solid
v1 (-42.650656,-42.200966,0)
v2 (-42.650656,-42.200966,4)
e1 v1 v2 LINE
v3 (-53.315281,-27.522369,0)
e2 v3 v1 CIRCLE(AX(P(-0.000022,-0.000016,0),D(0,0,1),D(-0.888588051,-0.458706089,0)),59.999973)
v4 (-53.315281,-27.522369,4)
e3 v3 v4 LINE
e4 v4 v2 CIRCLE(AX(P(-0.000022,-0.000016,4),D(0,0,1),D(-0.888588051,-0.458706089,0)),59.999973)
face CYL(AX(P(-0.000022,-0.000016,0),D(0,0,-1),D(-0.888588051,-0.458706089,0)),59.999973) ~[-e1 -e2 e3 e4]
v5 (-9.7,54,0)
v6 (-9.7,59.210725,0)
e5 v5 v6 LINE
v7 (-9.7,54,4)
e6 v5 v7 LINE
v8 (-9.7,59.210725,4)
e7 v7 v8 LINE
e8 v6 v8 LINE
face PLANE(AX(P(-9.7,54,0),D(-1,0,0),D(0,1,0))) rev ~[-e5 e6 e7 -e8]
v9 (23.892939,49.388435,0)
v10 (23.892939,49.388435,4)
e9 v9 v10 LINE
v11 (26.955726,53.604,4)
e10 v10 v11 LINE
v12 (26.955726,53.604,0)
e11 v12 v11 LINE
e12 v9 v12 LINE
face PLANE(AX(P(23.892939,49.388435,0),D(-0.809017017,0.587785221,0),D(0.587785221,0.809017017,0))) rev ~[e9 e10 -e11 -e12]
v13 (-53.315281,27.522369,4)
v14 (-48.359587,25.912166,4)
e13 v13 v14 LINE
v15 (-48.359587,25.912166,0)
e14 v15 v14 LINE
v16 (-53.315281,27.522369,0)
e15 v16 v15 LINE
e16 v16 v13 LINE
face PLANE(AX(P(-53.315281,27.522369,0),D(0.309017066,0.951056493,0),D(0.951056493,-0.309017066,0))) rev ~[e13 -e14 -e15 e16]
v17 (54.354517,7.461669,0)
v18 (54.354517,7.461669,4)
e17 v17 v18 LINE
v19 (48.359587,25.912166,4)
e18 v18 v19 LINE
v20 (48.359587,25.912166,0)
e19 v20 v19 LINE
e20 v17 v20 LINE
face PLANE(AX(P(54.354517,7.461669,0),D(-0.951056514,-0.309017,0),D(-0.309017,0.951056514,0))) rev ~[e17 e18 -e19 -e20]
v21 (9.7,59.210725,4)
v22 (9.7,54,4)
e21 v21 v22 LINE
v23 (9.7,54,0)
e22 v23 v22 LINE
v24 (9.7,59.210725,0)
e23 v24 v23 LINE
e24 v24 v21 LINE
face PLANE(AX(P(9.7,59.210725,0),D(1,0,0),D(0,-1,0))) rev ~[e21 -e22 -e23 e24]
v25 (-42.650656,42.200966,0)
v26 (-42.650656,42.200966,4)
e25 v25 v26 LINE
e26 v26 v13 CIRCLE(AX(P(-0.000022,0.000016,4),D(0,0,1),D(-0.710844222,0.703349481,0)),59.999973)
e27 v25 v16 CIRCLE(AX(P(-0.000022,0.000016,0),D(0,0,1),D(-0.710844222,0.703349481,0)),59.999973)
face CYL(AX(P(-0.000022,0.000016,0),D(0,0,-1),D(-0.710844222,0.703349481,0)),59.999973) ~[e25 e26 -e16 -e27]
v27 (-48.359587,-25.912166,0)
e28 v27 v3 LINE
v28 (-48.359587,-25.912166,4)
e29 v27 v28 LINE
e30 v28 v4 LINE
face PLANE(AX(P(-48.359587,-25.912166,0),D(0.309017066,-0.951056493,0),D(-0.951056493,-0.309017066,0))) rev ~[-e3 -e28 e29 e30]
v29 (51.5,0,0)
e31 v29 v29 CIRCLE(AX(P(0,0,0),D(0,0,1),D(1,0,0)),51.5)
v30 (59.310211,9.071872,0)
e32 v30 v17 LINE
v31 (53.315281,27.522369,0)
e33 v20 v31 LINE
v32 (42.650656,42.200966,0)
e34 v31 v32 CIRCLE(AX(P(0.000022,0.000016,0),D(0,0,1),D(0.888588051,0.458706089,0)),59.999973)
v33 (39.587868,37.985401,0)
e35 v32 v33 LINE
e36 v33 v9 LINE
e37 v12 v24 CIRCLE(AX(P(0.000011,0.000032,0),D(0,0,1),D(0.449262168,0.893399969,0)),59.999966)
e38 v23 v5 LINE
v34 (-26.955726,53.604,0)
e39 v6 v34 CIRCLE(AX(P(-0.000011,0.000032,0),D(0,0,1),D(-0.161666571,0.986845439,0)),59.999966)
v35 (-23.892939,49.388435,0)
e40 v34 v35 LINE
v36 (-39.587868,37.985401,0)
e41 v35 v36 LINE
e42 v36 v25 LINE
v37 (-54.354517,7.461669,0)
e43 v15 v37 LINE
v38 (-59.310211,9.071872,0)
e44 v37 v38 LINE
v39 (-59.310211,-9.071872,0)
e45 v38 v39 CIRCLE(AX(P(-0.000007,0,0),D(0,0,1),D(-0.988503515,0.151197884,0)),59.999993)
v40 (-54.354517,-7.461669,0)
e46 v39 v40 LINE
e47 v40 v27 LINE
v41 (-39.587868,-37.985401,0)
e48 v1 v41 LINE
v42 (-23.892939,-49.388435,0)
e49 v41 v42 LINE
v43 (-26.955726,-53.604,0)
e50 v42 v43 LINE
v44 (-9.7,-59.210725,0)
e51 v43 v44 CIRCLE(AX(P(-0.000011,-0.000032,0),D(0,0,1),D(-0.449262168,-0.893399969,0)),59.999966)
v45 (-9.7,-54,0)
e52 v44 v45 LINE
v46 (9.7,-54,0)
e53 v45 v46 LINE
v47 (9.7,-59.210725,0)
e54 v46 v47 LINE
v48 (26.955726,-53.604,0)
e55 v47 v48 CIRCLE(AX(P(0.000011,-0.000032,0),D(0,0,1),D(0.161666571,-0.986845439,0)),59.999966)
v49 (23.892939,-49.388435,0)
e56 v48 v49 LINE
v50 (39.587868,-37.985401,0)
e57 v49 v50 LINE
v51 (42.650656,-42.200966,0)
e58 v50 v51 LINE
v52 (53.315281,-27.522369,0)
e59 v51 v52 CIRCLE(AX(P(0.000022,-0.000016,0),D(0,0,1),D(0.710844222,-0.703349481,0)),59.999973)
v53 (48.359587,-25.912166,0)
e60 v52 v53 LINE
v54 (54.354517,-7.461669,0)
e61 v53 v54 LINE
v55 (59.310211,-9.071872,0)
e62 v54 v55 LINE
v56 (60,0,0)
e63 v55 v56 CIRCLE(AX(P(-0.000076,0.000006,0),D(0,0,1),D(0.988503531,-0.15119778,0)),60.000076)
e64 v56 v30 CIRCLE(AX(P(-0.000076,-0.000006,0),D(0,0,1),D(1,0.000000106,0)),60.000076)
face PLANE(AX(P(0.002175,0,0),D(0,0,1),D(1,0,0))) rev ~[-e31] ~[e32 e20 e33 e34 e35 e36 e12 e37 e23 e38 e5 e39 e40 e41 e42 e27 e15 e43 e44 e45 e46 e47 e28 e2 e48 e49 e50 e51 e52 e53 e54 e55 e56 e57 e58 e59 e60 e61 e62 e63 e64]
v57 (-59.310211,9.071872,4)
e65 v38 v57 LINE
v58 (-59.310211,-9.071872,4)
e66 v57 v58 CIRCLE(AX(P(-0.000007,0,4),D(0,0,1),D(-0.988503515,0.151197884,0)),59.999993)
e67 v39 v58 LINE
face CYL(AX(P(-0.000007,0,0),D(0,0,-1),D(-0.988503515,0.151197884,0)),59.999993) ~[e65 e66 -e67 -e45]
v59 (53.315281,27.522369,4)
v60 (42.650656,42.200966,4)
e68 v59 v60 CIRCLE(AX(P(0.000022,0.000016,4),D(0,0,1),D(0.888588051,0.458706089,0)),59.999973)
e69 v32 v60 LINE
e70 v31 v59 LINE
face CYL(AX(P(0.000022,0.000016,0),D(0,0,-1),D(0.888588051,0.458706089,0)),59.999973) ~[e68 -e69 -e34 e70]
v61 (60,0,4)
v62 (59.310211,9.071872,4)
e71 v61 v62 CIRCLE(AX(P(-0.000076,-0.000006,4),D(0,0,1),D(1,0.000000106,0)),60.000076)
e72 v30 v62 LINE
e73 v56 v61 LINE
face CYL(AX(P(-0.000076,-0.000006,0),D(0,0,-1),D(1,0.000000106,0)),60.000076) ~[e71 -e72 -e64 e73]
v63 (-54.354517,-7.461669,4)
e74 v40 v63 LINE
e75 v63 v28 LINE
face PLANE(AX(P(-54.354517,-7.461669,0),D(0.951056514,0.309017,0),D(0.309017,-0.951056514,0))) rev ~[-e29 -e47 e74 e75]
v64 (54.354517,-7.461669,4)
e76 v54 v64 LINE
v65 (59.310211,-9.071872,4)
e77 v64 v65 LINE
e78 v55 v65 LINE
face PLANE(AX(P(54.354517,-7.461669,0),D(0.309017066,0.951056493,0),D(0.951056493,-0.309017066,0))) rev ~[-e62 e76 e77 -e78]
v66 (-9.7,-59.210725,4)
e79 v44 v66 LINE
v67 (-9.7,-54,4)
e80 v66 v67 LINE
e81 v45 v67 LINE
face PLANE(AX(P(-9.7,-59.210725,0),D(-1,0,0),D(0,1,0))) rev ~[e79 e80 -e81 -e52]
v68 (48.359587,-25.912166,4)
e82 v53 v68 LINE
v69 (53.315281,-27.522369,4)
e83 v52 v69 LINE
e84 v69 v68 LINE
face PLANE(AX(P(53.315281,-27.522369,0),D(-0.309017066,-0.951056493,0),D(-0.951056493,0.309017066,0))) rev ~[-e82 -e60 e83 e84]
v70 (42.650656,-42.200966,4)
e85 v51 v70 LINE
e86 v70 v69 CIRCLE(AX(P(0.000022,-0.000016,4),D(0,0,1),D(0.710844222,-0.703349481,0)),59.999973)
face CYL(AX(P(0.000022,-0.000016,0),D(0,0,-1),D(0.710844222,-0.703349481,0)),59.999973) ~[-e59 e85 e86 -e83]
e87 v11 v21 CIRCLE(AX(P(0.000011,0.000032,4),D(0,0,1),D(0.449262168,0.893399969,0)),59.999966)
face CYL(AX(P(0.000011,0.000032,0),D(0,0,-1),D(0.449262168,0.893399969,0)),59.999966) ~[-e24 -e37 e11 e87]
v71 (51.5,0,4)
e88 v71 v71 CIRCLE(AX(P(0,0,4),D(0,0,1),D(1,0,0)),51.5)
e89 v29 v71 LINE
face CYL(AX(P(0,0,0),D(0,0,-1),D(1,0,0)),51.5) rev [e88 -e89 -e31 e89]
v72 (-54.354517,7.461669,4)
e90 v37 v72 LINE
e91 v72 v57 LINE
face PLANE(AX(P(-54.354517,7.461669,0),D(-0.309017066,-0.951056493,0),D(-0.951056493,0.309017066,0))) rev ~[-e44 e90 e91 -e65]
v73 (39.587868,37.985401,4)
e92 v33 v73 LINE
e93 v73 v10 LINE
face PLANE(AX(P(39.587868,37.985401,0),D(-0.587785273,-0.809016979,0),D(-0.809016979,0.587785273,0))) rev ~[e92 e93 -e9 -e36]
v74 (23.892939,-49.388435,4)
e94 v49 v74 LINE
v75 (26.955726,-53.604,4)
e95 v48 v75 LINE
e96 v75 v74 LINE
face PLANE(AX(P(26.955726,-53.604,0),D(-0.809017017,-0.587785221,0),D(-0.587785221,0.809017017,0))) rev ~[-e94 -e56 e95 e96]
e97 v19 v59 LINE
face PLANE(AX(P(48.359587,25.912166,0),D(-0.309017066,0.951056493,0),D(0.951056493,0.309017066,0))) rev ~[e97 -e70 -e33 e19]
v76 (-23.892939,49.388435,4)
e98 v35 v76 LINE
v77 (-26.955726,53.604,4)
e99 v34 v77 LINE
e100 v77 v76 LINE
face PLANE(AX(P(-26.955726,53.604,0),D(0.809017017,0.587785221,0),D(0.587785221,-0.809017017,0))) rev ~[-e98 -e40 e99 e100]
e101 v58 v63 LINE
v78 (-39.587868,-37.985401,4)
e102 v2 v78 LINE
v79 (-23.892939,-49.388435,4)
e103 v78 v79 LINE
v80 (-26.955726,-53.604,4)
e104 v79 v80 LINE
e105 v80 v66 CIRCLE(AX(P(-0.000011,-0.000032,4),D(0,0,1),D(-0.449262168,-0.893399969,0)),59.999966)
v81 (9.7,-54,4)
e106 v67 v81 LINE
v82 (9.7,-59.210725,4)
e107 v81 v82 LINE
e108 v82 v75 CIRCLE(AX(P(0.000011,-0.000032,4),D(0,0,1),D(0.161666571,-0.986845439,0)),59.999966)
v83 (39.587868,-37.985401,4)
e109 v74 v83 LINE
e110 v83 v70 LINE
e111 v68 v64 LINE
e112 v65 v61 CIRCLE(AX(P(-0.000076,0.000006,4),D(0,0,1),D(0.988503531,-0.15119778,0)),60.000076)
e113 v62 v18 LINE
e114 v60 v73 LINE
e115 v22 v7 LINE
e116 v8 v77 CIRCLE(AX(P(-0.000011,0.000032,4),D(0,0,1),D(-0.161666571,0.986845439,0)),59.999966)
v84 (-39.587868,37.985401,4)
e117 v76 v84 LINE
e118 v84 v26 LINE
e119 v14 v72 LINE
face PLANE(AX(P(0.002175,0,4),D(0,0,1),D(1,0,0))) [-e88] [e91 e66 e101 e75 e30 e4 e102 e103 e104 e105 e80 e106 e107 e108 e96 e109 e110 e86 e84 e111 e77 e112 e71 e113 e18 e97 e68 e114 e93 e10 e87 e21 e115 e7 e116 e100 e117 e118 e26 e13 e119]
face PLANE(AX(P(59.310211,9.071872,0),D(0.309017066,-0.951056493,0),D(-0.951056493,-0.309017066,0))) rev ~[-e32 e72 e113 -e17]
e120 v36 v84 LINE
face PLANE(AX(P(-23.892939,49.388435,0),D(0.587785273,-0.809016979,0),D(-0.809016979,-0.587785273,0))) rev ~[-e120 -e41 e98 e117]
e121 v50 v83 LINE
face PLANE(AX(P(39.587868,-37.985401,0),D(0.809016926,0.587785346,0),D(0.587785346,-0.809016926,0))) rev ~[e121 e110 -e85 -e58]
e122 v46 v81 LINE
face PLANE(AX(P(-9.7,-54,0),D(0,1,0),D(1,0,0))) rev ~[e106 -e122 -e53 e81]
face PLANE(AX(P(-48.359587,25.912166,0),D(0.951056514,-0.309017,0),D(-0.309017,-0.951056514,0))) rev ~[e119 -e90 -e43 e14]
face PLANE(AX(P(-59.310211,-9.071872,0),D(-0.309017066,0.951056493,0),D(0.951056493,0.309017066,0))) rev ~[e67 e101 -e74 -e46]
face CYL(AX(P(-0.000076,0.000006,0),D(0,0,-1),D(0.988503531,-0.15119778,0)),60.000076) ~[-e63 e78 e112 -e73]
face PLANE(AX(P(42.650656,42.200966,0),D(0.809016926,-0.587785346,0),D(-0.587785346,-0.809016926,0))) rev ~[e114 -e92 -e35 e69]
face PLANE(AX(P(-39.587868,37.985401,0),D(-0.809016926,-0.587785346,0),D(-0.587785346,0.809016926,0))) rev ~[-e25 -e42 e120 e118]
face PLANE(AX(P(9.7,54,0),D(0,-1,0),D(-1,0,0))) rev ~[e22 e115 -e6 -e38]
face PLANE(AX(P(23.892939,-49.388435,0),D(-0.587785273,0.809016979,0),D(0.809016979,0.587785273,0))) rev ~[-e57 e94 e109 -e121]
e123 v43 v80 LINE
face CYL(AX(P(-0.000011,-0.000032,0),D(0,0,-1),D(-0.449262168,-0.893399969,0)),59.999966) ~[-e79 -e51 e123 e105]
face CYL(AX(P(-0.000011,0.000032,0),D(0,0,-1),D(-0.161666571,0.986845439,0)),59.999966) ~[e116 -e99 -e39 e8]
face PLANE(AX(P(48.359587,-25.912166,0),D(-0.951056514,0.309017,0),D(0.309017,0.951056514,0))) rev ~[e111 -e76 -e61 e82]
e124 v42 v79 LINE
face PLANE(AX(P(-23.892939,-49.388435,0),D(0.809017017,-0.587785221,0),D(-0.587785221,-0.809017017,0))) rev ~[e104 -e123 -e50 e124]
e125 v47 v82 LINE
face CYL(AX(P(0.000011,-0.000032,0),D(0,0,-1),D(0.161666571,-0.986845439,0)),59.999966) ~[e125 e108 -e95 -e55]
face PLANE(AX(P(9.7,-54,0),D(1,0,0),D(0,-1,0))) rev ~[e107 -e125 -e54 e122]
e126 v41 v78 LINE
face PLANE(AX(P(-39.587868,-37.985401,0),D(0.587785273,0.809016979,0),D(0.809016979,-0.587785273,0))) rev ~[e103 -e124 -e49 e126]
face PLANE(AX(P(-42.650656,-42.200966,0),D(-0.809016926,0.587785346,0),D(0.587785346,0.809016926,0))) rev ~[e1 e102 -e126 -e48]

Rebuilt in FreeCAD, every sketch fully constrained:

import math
import FreeCAD as App
import Part
import Sketcher

V = App.Vector
Q = App.Units.Quantity

doc = App.newDocument("Part")
body = doc.addObject("PartDesign::Body", "Body")

# Sketch on XY plane
sketch1 = doc.addObject("Sketcher::SketchObject", "Sketch")
body.addObject(sketch1)
sketch1.AttachmentSupport = (doc.XY_Plane, [""])
sketch1.MapMode = "FlatFace"
sketch1.addGeometry([
    Part.ArcOfCircle(Part.Circle(V(-0.000076, 0.000006, 0), V(0, 0, 1), 60.000076), math.radians(-8.696346), math.radians(-0.000006)),  # 0
    Part.ArcOfCircle(Part.Circle(V(-0.000076, -0.000006, 0), V(0, 0, 1), 60.000076), math.radians(0.000006), math.radians(8.696346)),  # 1
    Part.LineSegment(V(59.310211, 9.071872, 0), V(54.354517, 7.461669, 0)),  # 2
    Part.LineSegment(V(54.354517, 7.461669, 0), V(48.359587, 25.912166, 0)),  # 3
    Part.LineSegment(V(48.359587, 25.912166, 0), V(53.315281, 27.522369, 0)),  # 4
    Part.ArcOfCircle(Part.Circle(V(0.000022, 0.000016, 0), V(0, 0, 1), 59.999973), math.radians(27.303645), math.radians(44.696355)),  # 5
    Part.LineSegment(V(42.650656, 42.200966, 0), V(39.587868, 37.985401, 0)),  # 6
    Part.LineSegment(V(39.587868, 37.985401, 0), V(23.892939, 49.388435, 0)),  # 7
    Part.LineSegment(V(23.892939, 49.388435, 0), V(26.955726, 53.604, 0)),  # 8
    Part.ArcOfCircle(Part.Circle(V(0.000011, 0.000032, 0), V(0, 0, 1), 59.999966), math.radians(63.303645), math.radians(80.696357)),  # 9
    Part.LineSegment(V(9.7, 59.210725, 0), V(9.7, 54, 0)),  # 10
    Part.LineSegment(V(9.7, 54, 0), V(-9.7, 54, 0)),  # 11
    Part.LineSegment(V(-9.7, 54, 0), V(-9.7, 59.210725, 0)),  # 12
    Part.ArcOfCircle(Part.Circle(V(-0.000011, 0.000032, 0), V(0, 0, 1), 59.999966), math.radians(99.303643), math.radians(116.696355)),  # 13
    Part.LineSegment(V(-26.955726, 53.604, 0), V(-23.892939, 49.388435, 0)),  # 14
    Part.LineSegment(V(-23.892939, 49.388435, 0), V(-39.587868, 37.985401, 0)),  # 15
    Part.LineSegment(V(-39.587868, 37.985401, 0), V(-42.650656, 42.200966, 0)),  # 16
    Part.ArcOfCircle(Part.Circle(V(-0.000022, 0.000016, 0), V(0, 0, 1), 59.999973), math.radians(135.303645), math.radians(152.696355)),  # 17
    Part.LineSegment(V(-53.315281, 27.522369, 0), V(-48.359587, 25.912166, 0)),  # 18
    Part.LineSegment(V(-48.359587, 25.912166, 0), V(-54.354517, 7.461669, 0)),  # 19
    Part.LineSegment(V(-54.354517, 7.461669, 0), V(-59.310211, 9.071872, 0)),  # 20
    Part.ArcOfCircle(Part.Circle(V(-0.000007, 0, 0), V(0, 0, 1), 59.999993), math.radians(171.303648), math.radians(188.696352)),  # 21
    Part.LineSegment(V(-59.310211, -9.071872, 0), V(-54.354517, -7.461669, 0)),  # 22
    Part.LineSegment(V(-54.354517, -7.461669, 0), V(-48.359587, -25.912166, 0)),  # 23
    Part.LineSegment(V(-48.359587, -25.912166, 0), V(-53.315281, -27.522369, 0)),  # 24
    Part.ArcOfCircle(Part.Circle(V(-0.000022, -0.000016, 0), V(0, 0, 1), 59.999973), math.radians(-152.696355), math.radians(-135.303645)),  # 25
    Part.LineSegment(V(-42.650656, -42.200966, 0), V(-39.587868, -37.985401, 0)),  # 26
    Part.LineSegment(V(-39.587868, -37.985401, 0), V(-23.892939, -49.388435, 0)),  # 27
    Part.LineSegment(V(-23.892939, -49.388435, 0), V(-26.955726, -53.604, 0)),  # 28
    Part.ArcOfCircle(Part.Circle(V(-0.000011, -0.000032, 0), V(0, 0, 1), 59.999966), math.radians(-116.696355), math.radians(-99.303643)),  # 29
    Part.LineSegment(V(-9.7, -59.210725, 0), V(-9.7, -54, 0)),  # 30
    Part.LineSegment(V(-9.7, -54, 0), V(9.7, -54, 0)),  # 31
    Part.LineSegment(V(9.7, -54, 0), V(9.7, -59.210725, 0)),  # 32
    Part.ArcOfCircle(Part.Circle(V(0.000011, -0.000032, 0), V(0, 0, 1), 59.999966), math.radians(-80.696357), math.radians(-63.303645)),  # 33
    Part.LineSegment(V(26.955726, -53.604, 0), V(23.892939, -49.388435, 0)),  # 34
    Part.LineSegment(V(23.892939, -49.388435, 0), V(39.587868, -37.985401, 0)),  # 35
    Part.LineSegment(V(39.587868, -37.985401, 0), V(42.650656, -42.200966, 0)),  # 36
    Part.ArcOfCircle(Part.Circle(V(0.000022, -0.000016, 0), V(0, 0, 1), 59.999973), math.radians(-44.696355), math.radians(-27.303645)),  # 37
    Part.LineSegment(V(53.315281, -27.522369, 0), V(48.359587, -25.912166, 0)),  # 38
    Part.LineSegment(V(48.359587, -25.912166, 0), V(54.354517, -7.461669, 0)),  # 39
    Part.LineSegment(V(54.354517, -7.461669, 0), V(59.310211, -9.071872, 0)),  # 40
    Part.Circle(V(0, 0, 0), V(0, 0, 1), 51.5),  # 41
], False)
sketch1.addConstraint([
    Sketcher.Constraint("Tangent", 0, 2, 1, 1),
    Sketcher.Constraint("Coincident", 1, 2, 2, 1),
    Sketcher.Constraint("Coincident", 2, 2, 3, 1),
    Sketcher.Constraint("Coincident", 3, 2, 4, 1),
    Sketcher.Constraint("Coincident", 4, 2, 5, 1),
    Sketcher.Constraint("Coincident", 5, 2, 6, 1),
    Sketcher.Constraint("Coincident", 6, 2, 7, 1),
    Sketcher.Constraint("Coincident", 7, 2, 8, 1),
    Sketcher.Constraint("Coincident", 8, 2, 9, 1),
    Sketcher.Constraint("Coincident", 9, 2, 10, 1),
    Sketcher.Constraint("Coincident", 10, 2, 11, 1),
    Sketcher.Constraint("Coincident", 11, 2, 12, 1),
    Sketcher.Constraint("Coincident", 12, 2, 13, 1),
    Sketcher.Constraint("Coincident", 13, 2, 14, 1),
    Sketcher.Constraint("Coincident", 14, 2, 15, 1),
    Sketcher.Constraint("Coincident", 15, 2, 16, 1),
    Sketcher.Constraint("Coincident", 16, 2, 17, 1),
    Sketcher.Constraint("Coincident", 17, 2, 18, 1),
    Sketcher.Constraint("Coincident", 18, 2, 19, 1),
    Sketcher.Constraint("Coincident", 19, 2, 20, 1),
    Sketcher.Constraint("Coincident", 20, 2, 21, 1),
    Sketcher.Constraint("Coincident", 21, 2, 22, 1),
    Sketcher.Constraint("Coincident", 22, 2, 23, 1),
    Sketcher.Constraint("Coincident", 23, 2, 24, 1),
    Sketcher.Constraint("Coincident", 24, 2, 25, 1),
    Sketcher.Constraint("Coincident", 25, 2, 26, 1),
    Sketcher.Constraint("Coincident", 26, 2, 27, 1),
    Sketcher.Constraint("Coincident", 27, 2, 28, 1),
    Sketcher.Constraint("Coincident", 28, 2, 29, 1),
    Sketcher.Constraint("Coincident", 29, 2, 30, 1),
    Sketcher.Constraint("Coincident", 30, 2, 31, 1),
    Sketcher.Constraint("Coincident", 31, 2, 32, 1),
    Sketcher.Constraint("Coincident", 32, 2, 33, 1),
    Sketcher.Constraint("Coincident", 33, 2, 34, 1),
    Sketcher.Constraint("Coincident", 34, 2, 35, 1),
    Sketcher.Constraint("Coincident", 35, 2, 36, 1),
    Sketcher.Constraint("Coincident", 36, 2, 37, 1),
    Sketcher.Constraint("Coincident", 37, 2, 38, 1),
    Sketcher.Constraint("Coincident", 38, 2, 39, 1),
    Sketcher.Constraint("Coincident", 39, 2, 40, 1),
    Sketcher.Constraint("Coincident", 40, 2, 0, 1),
    Sketcher.Constraint("Vertical", 10),
    Sketcher.Constraint("Horizontal", 11),
    Sketcher.Constraint("Vertical", 12),
    Sketcher.Constraint("Vertical", 30),
    Sketcher.Constraint("Horizontal", 31),
    Sketcher.Constraint("Vertical", 32),
    Sketcher.Constraint("Coincident", 21, 3, -1, 1),
    Sketcher.Constraint("Coincident", 41, 3, -1, 1),
    Sketcher.Constraint("Equal", 0, 1),
    Sketcher.Constraint("Equal", 9, 13),
    Sketcher.Constraint("Equal", 5, 17),
    Sketcher.Constraint("Equal", 17, 25),
    Sketcher.Constraint("Equal", 13, 29),
    Sketcher.Constraint("Equal", 29, 33),
    Sketcher.Constraint("Equal", 25, 37),
    Sketcher.Constraint("Symmetric", 5, 3, 25, 3, -1, 1),
    Sketcher.Constraint("Symmetric", 9, 3, 29, 3, -1, 1),
    Sketcher.Constraint("Symmetric", 13, 3, 33, 3, -1, 1),
    Sketcher.Constraint("Symmetric", 17, 3, 37, 3, -1, 1),
    Sketcher.Constraint("Symmetric", 1, 2, 21, 2, -1, 1),
    Sketcher.Constraint("Symmetric", 2, 2, 22, 2, -1, 1),
    Sketcher.Constraint("Symmetric", 3, 2, 23, 2, -1, 1),
    Sketcher.Constraint("Symmetric", 6, 2, 26, 2, -1, 1),
    Sketcher.Constraint("Symmetric", 7, 2, 27, 2, -1, 1),
    Sketcher.Constraint("Symmetric", 10, 2, 30, 2, -1, 1),
    Sketcher.Constraint("Symmetric", 14, 2, 34, 2, -1, 1),
    Sketcher.Constraint("Symmetric", 15, 2, 35, 2, -1, 1),
    Sketcher.Constraint("Symmetric", 18, 2, 38, 2, -1, 1),
    Sketcher.Constraint("Symmetric", 19, 2, 39, 2, -1, 1),
    Sketcher.Constraint("Symmetric", 20, 2, 40, 2, -1, 1),
    Sketcher.Constraint("Symmetric", 9, 3, 13, 3, -2),
    Sketcher.Constraint("Symmetric", 5, 3, 17, 3, -2),
    Sketcher.Constraint("Symmetric", 7, 2, 14, 2, -2),
    Sketcher.Constraint("Symmetric", 6, 2, 15, 2, -2),
    Sketcher.Constraint("Symmetric", 3, 2, 18, 2, -2),
    Sketcher.Constraint("Symmetric", 2, 2, 19, 2, -2),
    Sketcher.Constraint("PointOnObject", 0, 2, -1),
    Sketcher.Constraint("Perpendicular", 2, 3),
    Sketcher.Constraint("Perpendicular", 3, 4),
    Sketcher.Constraint("Perpendicular", 6, 7),
    Sketcher.Constraint("Perpendicular", 7, 8),
    Sketcher.Constraint("Perpendicular", 14, 15),
    Sketcher.Constraint("Perpendicular", 15, 16),
    Sketcher.Constraint("Perpendicular", 18, 19),
    Sketcher.Constraint("Perpendicular", 19, 20),
    Sketcher.Constraint("Perpendicular", 23, 24),
    Sketcher.Constraint("Parallel", 8, 26),
    Sketcher.Constraint("Perpendicular", 27, 28),
    Sketcher.Constraint("Parallel", 16, 34),
    Sketcher.Constraint("Perpendicular", 35, 36),
    Sketcher.Constraint("Parallel", 20, 38),
    Sketcher.Constraint("Horizontal", 9, 2, 12, 2),
    Sketcher.Constraint("Horizontal", 29, 2, 32, 2),
    Sketcher.Constraint("Equal", 2, 4),
    Sketcher.Constraint("Equal", 4, 6),
    Sketcher.Constraint("Equal", 3, 7),
    Sketcher.Constraint("Equal", 6, 8),
    Sketcher.Constraint("Diameter", 41, Q("103 mm")),
    Sketcher.Constraint("Angle", 2, Q("-161.999996 deg")),
    Sketcher.Constraint("Angle", 6, Q("-126.000007 deg")),
    Sketcher.Constraint("DistanceX", 11, 2, 11, 1, Q("19.4 mm")),
    Sketcher.Constraint("DistanceX", -1, 1, 0, 2, Q("60 mm")),
    Sketcher.Constraint("DistanceY", -1, 1, 10, 2, Q("54 mm")),
    Sketcher.Constraint("Distance", 3, Q("19.400001 mm")),
    Sketcher.Constraint("DistanceY", -1, 1, 8, 2, Q("53.604 mm")),
    Sketcher.Constraint("Radius", 0, Q("60.000076 mm")),
    Sketcher.Constraint("Radius", 5, Q("59.999973 mm")),
    Sketcher.Constraint("Radius", 9, Q("59.999966 mm")),
    Sketcher.Constraint("DistanceY", -1, 1, 6, 2, Q("37.985401 mm")),
    Sketcher.Constraint("DistanceX", 9, 3, 1, 2, Q("59.3102 mm")),
    Sketcher.Constraint("DistanceY", 3, 2, 5, 2, Q("16.2888 mm")),
    Sketcher.Constraint("DistanceY", 10, 2, 10, 1, Q("5.210725 mm")),
])
pad1 = doc.addObject("PartDesign::Pad", "Pad")
body.addObject(pad1)
pad1.Profile = sketch1
pad1.Length = 4

doc.recompute()
